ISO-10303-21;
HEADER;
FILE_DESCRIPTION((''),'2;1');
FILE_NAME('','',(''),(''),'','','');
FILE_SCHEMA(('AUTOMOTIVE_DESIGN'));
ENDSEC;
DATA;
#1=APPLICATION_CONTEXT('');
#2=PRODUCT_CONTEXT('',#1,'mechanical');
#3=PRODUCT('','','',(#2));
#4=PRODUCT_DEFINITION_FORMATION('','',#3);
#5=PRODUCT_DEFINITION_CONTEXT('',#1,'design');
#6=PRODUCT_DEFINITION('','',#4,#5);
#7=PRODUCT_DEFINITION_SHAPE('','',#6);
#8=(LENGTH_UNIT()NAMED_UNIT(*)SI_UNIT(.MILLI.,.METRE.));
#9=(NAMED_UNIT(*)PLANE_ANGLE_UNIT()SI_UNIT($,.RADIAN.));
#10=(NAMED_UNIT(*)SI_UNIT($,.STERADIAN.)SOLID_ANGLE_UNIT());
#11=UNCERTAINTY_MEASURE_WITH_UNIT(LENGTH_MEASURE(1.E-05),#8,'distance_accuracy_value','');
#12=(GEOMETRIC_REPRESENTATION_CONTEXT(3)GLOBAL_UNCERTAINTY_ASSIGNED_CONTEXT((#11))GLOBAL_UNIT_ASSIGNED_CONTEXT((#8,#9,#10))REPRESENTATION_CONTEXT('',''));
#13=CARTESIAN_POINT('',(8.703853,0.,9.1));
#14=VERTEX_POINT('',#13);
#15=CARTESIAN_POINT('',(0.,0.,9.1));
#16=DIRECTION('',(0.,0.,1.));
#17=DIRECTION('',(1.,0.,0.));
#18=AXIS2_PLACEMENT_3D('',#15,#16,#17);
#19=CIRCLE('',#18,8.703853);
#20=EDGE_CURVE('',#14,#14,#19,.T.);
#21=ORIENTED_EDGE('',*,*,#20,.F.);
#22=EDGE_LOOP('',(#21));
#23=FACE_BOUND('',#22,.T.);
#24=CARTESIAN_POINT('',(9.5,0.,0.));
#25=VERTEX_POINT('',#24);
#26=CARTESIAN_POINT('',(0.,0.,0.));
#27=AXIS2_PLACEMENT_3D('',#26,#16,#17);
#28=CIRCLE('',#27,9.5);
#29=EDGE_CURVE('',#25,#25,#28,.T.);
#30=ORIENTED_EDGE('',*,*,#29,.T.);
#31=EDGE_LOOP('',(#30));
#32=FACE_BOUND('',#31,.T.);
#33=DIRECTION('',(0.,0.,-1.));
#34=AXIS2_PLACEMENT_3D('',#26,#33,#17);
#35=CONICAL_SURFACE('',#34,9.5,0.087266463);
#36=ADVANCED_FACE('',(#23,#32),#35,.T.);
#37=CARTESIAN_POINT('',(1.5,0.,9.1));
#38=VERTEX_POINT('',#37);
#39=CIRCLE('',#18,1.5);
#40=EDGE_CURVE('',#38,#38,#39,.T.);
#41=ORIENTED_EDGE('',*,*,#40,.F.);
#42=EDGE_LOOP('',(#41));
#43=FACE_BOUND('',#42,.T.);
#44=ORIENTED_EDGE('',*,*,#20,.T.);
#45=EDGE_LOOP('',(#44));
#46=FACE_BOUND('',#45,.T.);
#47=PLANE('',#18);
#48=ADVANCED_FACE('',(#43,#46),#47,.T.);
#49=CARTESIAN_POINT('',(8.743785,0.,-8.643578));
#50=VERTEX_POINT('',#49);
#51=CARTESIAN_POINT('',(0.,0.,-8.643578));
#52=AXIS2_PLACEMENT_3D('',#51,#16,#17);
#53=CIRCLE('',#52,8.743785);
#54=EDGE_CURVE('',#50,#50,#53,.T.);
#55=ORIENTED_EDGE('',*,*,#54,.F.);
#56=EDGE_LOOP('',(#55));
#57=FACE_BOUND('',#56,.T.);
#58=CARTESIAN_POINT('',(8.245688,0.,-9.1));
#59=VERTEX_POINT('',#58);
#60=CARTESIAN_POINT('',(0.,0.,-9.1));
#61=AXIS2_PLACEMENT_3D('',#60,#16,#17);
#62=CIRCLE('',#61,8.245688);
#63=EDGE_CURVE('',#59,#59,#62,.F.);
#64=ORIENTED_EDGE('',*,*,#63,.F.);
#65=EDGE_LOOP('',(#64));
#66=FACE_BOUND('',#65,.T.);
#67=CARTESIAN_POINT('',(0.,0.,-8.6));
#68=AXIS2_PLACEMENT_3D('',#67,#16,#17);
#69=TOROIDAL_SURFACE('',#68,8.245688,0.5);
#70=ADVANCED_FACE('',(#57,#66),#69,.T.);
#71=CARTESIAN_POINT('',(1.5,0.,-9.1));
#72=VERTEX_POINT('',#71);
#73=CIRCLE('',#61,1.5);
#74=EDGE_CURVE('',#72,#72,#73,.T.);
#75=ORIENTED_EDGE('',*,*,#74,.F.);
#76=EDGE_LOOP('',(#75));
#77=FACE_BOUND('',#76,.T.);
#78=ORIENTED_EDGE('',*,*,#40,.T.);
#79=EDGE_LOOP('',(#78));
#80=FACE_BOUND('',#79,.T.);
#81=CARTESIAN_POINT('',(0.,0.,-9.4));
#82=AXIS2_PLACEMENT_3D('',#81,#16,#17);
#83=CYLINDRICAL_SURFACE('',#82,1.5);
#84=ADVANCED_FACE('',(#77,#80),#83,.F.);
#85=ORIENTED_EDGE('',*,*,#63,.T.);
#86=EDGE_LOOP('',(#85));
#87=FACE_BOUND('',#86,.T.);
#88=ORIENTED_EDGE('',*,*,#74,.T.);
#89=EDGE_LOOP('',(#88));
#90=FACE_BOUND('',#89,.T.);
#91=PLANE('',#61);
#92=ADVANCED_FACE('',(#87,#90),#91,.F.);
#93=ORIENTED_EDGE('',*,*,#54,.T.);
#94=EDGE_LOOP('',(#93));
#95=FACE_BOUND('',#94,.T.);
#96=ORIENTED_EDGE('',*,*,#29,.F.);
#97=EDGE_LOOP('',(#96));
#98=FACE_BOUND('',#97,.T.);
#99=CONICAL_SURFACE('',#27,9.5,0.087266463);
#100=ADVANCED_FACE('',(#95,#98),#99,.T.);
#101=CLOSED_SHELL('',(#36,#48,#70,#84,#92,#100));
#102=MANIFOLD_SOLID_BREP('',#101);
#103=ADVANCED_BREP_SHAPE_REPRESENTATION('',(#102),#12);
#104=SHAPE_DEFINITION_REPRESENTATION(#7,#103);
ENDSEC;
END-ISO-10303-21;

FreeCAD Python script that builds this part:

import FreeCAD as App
import Part
import Sketcher
Q = App.Units.Quantity


def edges_at(feature, points):
    """Names of the edges that pass closest to the given points."""
    edges = feature.Shape.Edges
    near = lambda p: min(range(len(edges)), key=lambda i: edges[i].distToShape(Part.Vertex(*p))[0])
    return sorted({f"Edge{near(p) + 1}" for p in points})

doc = App.newDocument("Part")
body = doc.addObject("PartDesign::Body", "Body")

sketch1 = body.newObject("Sketcher::SketchObject", "Sketch")
sketch1.AttachmentSupport = (doc.getObject("XY_Plane"), [""])
sketch1.MapMode = "FlatFace"
sketch1.addGeometry(Part.Circle(App.Vector(0, 0, 0), App.Vector(0, 0, 1), 9.5), False)
sketch1.addConstraint([
    Sketcher.Constraint("Coincident", 0, 3, -1, 1),
    Sketcher.Constraint("Diameter", 0, Q("19 mm")),
])
pad1 = body.newObject("PartDesign::Pad", "Pad")
pad1.Profile = sketch1
pad1.Length = 9.1
pad1.TaperAngle = -5

sketch2 = body.newObject("Sketcher::SketchObject", "Sketch001")
sketch2.AttachmentSupport = (doc.getObject("XY_Plane"), [""])
sketch2.MapMode = "FlatFace"
sketch2.addGeometry(Part.Circle(App.Vector(0, 0, 0), App.Vector(0, 0, 1), 9.5), False)
sketch2.addConstraint([
    Sketcher.Constraint("Coincident", 0, 3, -1, 1),
    Sketcher.Constraint("Diameter", 0, Q("19 mm")),
])
pad2 = body.newObject("PartDesign::Pad", "Pad001")
pad2.Profile = sketch2
pad2.Length = 9.1
pad2.Reversed = True
pad2.TaperAngle = -5
doc.recompute()

fillet = body.newObject("PartDesign::Fillet", "Fillet")
fillet.Base = (pad2, edges_at(pad2, [(-8.704, 0, -9.1)]))
fillet.Radius = 0.5

sketch3 = body.newObject("Sketcher::SketchObject", "Sketch002")
sketch3.AttachmentSupport = (doc.getObject("XY_Plane"), [""])
sketch3.MapMode = "FlatFace"
sketch3.AttachmentOffset = App.Placement(App.Vector(0, 0, 9.1), App.Rotation())
sketch3.addGeometry(Part.Circle(App.Vector(0, 0, 0), App.Vector(0, 0, 1), 1.5), False)
sketch3.addConstraint([
    Sketcher.Constraint("Coincident", 0, 3, -1, 1),
    Sketcher.Constraint("Diameter", 0, Q("3 mm")),
])
pocket1 = body.newObject("PartDesign::Pocket", "Pocket")
pocket1.Profile = sketch3
pocket1.Length = 18.5

doc.recompute()
